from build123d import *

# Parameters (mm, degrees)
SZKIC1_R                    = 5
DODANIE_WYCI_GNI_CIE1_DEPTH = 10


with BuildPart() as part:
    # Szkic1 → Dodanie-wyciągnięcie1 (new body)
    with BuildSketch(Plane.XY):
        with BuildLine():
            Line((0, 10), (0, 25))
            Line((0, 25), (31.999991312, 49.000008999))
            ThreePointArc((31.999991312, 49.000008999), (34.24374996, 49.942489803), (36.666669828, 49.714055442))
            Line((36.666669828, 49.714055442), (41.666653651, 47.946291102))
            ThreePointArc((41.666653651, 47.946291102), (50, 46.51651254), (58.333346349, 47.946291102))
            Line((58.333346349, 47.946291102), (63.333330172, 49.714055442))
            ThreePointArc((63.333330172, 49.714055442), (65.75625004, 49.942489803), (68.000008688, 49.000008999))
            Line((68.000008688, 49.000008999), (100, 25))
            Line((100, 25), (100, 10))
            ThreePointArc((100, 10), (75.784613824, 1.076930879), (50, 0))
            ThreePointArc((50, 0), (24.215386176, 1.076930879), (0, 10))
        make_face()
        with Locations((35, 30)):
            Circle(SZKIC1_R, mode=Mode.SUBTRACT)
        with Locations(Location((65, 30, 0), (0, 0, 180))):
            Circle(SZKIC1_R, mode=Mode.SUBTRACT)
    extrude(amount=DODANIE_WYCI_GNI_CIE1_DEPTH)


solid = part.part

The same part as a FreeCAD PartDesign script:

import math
import FreeCAD as App
import Part
import Sketcher

doc = App.newDocument("Part")
body = doc.addObject("PartDesign::Body", "Body")

# Sketch on XY plane
sketch1 = body.newObject("Sketcher::SketchObject", "Sketch")
sketch1.AttachmentSupport = (doc.getObject("XY_Plane"), [""])
sketch1.MapMode = "FlatFace"
sketch1.addGeometry([
    Part.LineSegment(App.Vector(0, 25, 0), App.Vector(0, 10, 0)),  # 0
    Part.ArcOfCircle(Part.Circle(App.Vector(40.539097, 82.695487, 0), App.Vector(0, 0, 1), 83.234922), math.radians(-119.146499), math.radians(-83.473366)),  # 1
    Part.ArcOfCircle(Part.Circle(App.Vector(59.460903, 82.695487, 0), App.Vector(0, 0, 1), 83.234922), math.radians(-96.526634), math.radians(-60.853501)),  # 2
    Part.LineSegment(App.Vector(100, 10, 0), App.Vector(100, 25, 0)),  # 3
    Part.LineSegment(App.Vector(100, 25, 0), App.Vector(68.000009, 49.000009, 0)),  # 4
    Part.ArcOfCircle(Part.Circle(App.Vector(65.000002, 45.000003, 0), App.Vector(0, 0, 1), 5.000009), math.radians(53.130085), math.radians(109.471252)),  # 5
    Part.LineSegment(App.Vector(63.33333, 49.714055, 0), App.Vector(58.333346, 47.946291, 0)),  # 6
    Part.ArcOfCircle(Part.Circle(App.Vector(50, 71.516513, 0), App.Vector(0, 0, 1), 25), math.radians(-109.471252), math.radians(-70.528748)),  # 7
    Part.LineSegment(App.Vector(41.666654, 47.946291, 0), App.Vector(36.66667, 49.714055, 0)),  # 8
    Part.ArcOfCircle(Part.Circle(App.Vector(34.999998, 45.000003, 0), App.Vector(0, 0, 1), 5.000009), math.radians(70.528748), math.radians(126.869915)),  # 9
    Part.LineSegment(App.Vector(31.999991, 49.000009, 0), App.Vector(0, 25, 0)),  # 10
    Part.Circle(App.Vector(65, 30, 0), App.Vector(0, 0, 1), 5),  # 11
    Part.Circle(App.Vector(35, 30, 0), App.Vector(0, 0, 1), 5),  # 12
], False)
sketch1.addConstraint([
    Sketcher.Constraint("Coincident", 0, 2, 1, 1),
    Sketcher.Constraint("Coincident", 1, 2, 2, 1),
    Sketcher.Constraint("Coincident", 2, 2, 3, 1),
    Sketcher.Constraint("Coincident", 3, 2, 4, 1),
    Sketcher.Constraint("Tangent", 4, 2, 5, 1),
    Sketcher.Constraint("Tangent", 5, 2, 6, 1),
    Sketcher.Constraint("Tangent", 6, 2, 7, 2),
    Sketcher.Constraint("Tangent", 7, 1, 8, 1),
    Sketcher.Constraint("Tangent", 8, 2, 9, 1),
    Sketcher.Constraint("Tangent", 9, 2, 10, 1),
    Sketcher.Constraint("Coincident", 10, 2, 0, 1),
    Sketcher.Constraint("Vertical", 0),
    Sketcher.Constraint("Vertical", 3),
    Sketcher.Constraint("Equal", 1, 2),
    Sketcher.Constraint("Equal", 5, 9),
    Sketcher.Constraint("Equal", 11, 12),
    Sketcher.Constraint("PointOnObject", 0, 2, -2),
    Sketcher.Constraint("PointOnObject", 1, 2, -1),
    Sketcher.Constraint("Horizontal", 1, 3, 2, 3),
    Sketcher.Constraint("Horizontal", 5, 3, 9, 3),
    Sketcher.Constraint("Horizontal", 11, 3, 12, 3),
    Sketcher.Constraint("Horizontal", 0, 2, 2, 2),
    Sketcher.Constraint("Horizontal", 6, 2, 7, 1),
    Sketcher.Constraint("Horizontal", 4, 2, 9, 2),
    Sketcher.Constraint("Horizontal", 3, 2, 10, 2),
    Sketcher.Constraint("Diameter", 11, 10.0),
    Sketcher.Constraint("Radius", 7, 25.0),
    Sketcher.Constraint("DistanceY", 0, 2, 0, 1, 15.0),
    Sketcher.Constraint("Distance", 4, 39.999998),
    Sketcher.Constraint("DistanceX", -1, 1, 7, 3, 50.0),
    Sketcher.Constraint("DistanceX", -1, 1, 11, 3, 65.0),
    Sketcher.Constraint("DistanceY", -1, 1, 11, 3, 30.0),
    Sketcher.Constraint("DistanceX", -1, 1, 12, 3, 35.0),
    Sketcher.Constraint("DistanceY", -1, 1, 0, 2, 10.0),
    Sketcher.Constraint("Radius", 1, 83.234922),
    Sketcher.Constraint("Radius", 5, 5.000009),
    Sketcher.Constraint("DistanceX", 2, 3, 5, 3, 5.5391),
    Sketcher.Constraint("DistanceX", -1, 1, 5, 2, 63.33333),
])
pad1 = body.newObject("PartDesign::Pad", "Pad")
pad1.Profile = sketch1
pad1.Length = 10

doc.recompute()
